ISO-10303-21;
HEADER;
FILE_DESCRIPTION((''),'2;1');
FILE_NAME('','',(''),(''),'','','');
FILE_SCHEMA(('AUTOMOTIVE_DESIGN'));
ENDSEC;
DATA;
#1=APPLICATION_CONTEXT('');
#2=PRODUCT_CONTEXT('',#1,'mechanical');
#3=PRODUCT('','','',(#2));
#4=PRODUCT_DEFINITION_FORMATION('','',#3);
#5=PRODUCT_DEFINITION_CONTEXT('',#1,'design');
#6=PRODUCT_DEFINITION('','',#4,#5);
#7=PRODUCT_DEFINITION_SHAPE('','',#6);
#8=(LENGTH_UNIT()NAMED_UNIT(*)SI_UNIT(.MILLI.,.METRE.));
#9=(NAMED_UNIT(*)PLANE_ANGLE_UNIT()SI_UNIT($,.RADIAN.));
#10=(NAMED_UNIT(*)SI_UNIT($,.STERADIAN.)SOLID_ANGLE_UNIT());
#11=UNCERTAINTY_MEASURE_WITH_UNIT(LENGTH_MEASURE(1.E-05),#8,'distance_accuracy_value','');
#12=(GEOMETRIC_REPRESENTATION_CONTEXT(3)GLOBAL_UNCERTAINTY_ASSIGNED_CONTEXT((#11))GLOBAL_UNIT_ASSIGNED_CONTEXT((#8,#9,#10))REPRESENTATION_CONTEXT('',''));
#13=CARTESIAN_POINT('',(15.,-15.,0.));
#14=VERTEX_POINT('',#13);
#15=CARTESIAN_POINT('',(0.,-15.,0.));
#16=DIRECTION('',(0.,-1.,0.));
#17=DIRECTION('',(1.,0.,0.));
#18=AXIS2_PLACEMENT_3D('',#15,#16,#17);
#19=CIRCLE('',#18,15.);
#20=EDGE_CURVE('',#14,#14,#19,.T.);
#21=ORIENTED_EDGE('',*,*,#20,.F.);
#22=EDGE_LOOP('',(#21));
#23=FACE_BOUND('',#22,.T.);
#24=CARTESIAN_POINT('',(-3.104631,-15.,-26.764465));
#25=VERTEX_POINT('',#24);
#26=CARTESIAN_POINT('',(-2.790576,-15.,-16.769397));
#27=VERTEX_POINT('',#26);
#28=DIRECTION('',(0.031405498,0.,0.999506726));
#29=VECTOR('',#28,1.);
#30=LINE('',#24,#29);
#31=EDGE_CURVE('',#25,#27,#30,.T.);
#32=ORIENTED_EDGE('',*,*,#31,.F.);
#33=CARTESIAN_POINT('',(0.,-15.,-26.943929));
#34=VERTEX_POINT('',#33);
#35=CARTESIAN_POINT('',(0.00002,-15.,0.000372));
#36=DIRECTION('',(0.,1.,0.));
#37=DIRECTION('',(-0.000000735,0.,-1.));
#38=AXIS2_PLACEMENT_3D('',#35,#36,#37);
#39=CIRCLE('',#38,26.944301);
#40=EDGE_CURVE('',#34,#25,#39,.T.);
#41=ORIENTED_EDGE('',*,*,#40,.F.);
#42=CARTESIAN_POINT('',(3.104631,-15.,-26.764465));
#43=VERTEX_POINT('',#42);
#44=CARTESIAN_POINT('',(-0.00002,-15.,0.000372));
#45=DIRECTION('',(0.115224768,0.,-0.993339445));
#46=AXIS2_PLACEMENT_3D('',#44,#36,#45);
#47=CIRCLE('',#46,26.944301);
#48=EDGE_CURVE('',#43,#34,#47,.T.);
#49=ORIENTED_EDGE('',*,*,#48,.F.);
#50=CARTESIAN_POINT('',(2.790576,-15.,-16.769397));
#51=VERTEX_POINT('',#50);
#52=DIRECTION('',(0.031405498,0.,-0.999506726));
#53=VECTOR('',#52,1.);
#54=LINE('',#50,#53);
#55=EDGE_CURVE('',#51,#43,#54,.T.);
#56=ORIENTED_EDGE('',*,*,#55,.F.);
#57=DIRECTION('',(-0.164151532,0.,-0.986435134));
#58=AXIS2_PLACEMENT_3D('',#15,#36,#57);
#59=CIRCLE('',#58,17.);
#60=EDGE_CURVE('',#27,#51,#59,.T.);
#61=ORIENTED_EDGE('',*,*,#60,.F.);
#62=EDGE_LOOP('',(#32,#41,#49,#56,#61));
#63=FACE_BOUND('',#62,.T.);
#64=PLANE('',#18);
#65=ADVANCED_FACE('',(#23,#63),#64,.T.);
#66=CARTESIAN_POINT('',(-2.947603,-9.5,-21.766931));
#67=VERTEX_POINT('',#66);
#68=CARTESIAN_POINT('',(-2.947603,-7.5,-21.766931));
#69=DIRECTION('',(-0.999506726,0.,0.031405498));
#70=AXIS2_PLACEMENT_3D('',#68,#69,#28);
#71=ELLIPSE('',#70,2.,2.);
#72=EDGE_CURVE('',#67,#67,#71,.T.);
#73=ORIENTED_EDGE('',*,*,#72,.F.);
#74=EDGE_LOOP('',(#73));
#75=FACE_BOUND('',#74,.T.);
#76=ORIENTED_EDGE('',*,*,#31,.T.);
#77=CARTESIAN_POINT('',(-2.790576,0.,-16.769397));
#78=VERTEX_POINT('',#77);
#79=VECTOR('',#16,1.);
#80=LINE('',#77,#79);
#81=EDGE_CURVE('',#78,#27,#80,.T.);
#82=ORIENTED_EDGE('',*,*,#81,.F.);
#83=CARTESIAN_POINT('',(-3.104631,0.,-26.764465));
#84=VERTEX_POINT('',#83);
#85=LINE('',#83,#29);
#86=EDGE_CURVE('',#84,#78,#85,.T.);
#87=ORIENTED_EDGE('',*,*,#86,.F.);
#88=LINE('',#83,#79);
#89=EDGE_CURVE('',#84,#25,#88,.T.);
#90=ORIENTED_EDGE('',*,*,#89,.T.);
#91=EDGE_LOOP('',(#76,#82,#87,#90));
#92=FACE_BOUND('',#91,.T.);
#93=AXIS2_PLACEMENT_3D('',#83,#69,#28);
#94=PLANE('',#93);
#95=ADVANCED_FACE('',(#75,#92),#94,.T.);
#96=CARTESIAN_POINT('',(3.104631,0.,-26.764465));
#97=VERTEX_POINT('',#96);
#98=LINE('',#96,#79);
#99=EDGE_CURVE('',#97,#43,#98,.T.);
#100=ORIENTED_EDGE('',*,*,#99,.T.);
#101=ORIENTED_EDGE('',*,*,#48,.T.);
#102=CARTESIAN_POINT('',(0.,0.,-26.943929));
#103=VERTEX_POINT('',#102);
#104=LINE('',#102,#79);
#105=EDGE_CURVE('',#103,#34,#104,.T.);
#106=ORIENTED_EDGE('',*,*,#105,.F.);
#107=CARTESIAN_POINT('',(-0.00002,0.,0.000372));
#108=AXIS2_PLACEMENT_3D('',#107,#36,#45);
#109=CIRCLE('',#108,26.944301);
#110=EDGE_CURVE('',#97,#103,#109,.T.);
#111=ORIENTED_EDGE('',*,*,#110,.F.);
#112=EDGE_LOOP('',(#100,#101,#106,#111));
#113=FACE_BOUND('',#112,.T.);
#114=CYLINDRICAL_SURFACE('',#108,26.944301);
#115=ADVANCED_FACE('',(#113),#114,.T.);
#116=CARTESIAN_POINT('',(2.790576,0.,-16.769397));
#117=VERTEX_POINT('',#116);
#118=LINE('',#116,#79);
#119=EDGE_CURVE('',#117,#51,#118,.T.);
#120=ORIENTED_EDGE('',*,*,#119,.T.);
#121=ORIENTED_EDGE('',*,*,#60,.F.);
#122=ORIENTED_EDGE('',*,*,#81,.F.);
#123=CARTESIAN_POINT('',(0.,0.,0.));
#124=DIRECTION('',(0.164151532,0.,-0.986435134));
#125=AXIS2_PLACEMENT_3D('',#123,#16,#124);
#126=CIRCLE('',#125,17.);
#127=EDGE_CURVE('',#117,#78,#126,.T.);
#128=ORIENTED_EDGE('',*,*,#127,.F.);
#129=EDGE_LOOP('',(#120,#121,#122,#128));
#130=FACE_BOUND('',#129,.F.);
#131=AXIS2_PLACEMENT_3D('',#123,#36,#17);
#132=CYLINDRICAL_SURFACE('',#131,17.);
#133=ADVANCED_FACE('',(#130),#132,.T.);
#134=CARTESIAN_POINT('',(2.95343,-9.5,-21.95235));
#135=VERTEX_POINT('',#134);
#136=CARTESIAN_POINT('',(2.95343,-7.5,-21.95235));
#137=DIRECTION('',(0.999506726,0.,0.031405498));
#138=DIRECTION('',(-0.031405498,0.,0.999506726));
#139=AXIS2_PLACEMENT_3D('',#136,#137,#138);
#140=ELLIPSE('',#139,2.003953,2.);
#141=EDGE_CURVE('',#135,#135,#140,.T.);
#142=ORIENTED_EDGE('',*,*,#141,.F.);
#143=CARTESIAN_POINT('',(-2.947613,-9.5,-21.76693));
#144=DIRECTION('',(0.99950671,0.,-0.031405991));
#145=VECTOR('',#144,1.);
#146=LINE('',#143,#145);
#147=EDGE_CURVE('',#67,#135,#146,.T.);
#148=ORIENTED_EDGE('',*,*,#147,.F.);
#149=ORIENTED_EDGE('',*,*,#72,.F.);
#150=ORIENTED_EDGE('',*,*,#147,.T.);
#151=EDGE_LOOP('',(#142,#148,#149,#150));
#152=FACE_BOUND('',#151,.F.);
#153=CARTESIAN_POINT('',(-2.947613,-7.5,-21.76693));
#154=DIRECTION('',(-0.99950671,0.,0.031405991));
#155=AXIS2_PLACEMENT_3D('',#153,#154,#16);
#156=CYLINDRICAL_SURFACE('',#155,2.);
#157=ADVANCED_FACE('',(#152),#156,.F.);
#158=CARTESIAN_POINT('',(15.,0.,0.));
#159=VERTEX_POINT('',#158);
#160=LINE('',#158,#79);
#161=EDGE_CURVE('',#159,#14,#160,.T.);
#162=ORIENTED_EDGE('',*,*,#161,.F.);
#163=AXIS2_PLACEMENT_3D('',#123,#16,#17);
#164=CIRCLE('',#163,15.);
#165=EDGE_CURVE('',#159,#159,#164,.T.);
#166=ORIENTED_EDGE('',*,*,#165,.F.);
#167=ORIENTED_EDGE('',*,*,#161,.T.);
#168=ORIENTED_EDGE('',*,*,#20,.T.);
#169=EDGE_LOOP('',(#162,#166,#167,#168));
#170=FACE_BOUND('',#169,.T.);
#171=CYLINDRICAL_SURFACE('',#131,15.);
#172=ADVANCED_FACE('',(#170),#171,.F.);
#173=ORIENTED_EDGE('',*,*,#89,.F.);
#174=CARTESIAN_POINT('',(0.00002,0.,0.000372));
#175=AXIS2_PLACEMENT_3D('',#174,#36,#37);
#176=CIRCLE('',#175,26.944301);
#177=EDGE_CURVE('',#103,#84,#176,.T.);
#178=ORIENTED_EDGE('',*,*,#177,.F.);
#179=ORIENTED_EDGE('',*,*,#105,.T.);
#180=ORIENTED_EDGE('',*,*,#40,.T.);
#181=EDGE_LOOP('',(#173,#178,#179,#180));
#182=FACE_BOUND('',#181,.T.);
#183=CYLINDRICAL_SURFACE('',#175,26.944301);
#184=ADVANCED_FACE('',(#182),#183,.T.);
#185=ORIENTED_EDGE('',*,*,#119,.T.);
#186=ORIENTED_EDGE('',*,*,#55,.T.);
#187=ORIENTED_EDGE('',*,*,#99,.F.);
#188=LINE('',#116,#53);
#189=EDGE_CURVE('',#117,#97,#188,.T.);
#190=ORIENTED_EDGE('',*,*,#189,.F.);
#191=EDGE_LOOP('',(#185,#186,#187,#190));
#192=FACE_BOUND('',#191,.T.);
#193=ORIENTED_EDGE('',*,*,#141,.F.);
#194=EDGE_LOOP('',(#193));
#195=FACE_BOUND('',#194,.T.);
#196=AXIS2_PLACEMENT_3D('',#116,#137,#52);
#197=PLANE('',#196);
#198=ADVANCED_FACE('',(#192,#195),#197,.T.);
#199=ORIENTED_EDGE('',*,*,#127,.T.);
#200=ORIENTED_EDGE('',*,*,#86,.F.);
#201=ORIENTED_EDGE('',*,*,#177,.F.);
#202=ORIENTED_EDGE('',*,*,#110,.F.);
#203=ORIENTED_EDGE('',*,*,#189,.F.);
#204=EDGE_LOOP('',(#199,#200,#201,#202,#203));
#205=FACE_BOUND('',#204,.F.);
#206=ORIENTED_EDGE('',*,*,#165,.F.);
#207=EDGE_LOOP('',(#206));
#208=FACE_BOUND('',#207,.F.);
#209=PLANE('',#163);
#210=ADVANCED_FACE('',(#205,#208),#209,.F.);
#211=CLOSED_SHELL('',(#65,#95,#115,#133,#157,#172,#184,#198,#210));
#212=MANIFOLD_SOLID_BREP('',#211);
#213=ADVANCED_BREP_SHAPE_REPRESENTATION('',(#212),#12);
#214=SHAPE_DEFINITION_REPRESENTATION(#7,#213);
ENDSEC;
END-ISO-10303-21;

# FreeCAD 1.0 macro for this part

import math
import FreeCAD as App
import Part
import Sketcher
Q = App.Units.Quantity

doc = App.newDocument("Part")
body = doc.addObject("PartDesign::Body", "Body")

# Sketch on XZ plane
sketch1 = body.newObject("Sketcher::SketchObject", "Sketch")
sketch1.AttachmentSupport = (doc.getObject("XZ_Plane"), [""])
sketch1.MapMode = "FlatFace"
sketch1.addGeometry([
    Part.Circle(App.Vector(0, 0, 0), App.Vector(0, 0, 1), 17),
    Part.Circle(App.Vector(0, 0, 0), App.Vector(0, 0, 1), 15),
], False)
sketch1.addConstraint([
    Sketcher.Constraint("Coincident", 0, 3, -1, 1),
    Sketcher.Constraint("Coincident", 1, 3, -1, 1),
    Sketcher.Constraint("Diameter", 0, Q("34 mm")),
    Sketcher.Constraint("Diameter", 1, Q("30 mm")),
])
pad1 = body.newObject("PartDesign::Pad", "Pad")
pad1.Profile = sketch1
pad1.Length = 15

# Sketch on XZ plane
sketch2 = body.newObject("Sketcher::SketchObject", "Sketch001")
sketch2.AttachmentSupport = (doc.getObject("XZ_Plane"), [""])
sketch2.MapMode = "FlatFace"
sketch2.addGeometry([
    Part.LineSegment(App.Vector(2.8, -16.8, 0), App.Vector(3.1, -26.8, 0)),  # 0
    Part.ArcOfCircle(Part.Circle(App.Vector(0, 0, 0), App.Vector(0, 0, 1), 26.9), math.radians(-90), math.radians(-83.38)),  # 1
    Part.ArcOfCircle(Part.Circle(App.Vector(0, 0, 0), App.Vector(0, 0, 1), 26.9), math.radians(-96.62), math.radians(-90)),  # 2
    Part.LineSegment(App.Vector(-3.1, -26.8, 0), App.Vector(-2.8, -16.8, 0)),  # 3
    Part.ArcOfCircle(Part.Circle(App.Vector(0, 0, 0), App.Vector(0, 0, 1), 17), math.radians(-99.45), math.radians(-90)),  # 4
    Part.ArcOfCircle(Part.Circle(App.Vector(0, 0, 0), App.Vector(0, 0, 1), 17), math.radians(-90), math.radians(-80.55)),  # 5
], False)
sketch2.addConstraint([
    Sketcher.Constraint("Coincident", 0, 2, 1, 2),
    Sketcher.Constraint("Tangent", 1, 1, 2, 2),
    Sketcher.Constraint("Coincident", 2, 1, 3, 1),
    Sketcher.Constraint("Coincident", 3, 2, 4, 1),
    Sketcher.Constraint("Tangent", 4, 2, 5, 1),
    Sketcher.Constraint("Coincident", 5, 2, 0, 1),
    Sketcher.Constraint("Equal", 1, 2),
    Sketcher.Constraint("Equal", 4, 5),
    Sketcher.Constraint("Symmetric", 0, 2, 2, 1, -2),
    Sketcher.Constraint("Symmetric", 3, 2, 5, 2, -2),
    Sketcher.Constraint("PointOnObject", 1, 1, -2),
    Sketcher.Constraint("PointOnObject", 4, 2, -2),
    Sketcher.Constraint("Distance", 0, Q("10.000001 mm")),
    Sketcher.Constraint("DistanceY", 4, 2, -1, 1, Q("17 mm")),
    Sketcher.Constraint("Radius", 1, Q("26.944301 mm")),
    Sketcher.Constraint("Radius", 4, Q("17.000025 mm")),
    Sketcher.Constraint("DistanceY", -1, 1, 1, 3, Q("0.000372 mm")),
    Sketcher.Constraint("DistanceX", -1, 1, 0, 2, Q("3.104631 mm")),
])
pad2 = body.newObject("PartDesign::Pad", "Pad001")
pad2.Profile = sketch2
pad2.Length = 15

# Sketch on an angled plane
sketch3 = body.newObject("Sketcher::SketchObject", "Sketch002")
sketch3.Placement = App.Placement(App.Vector(-2.261431, 0, 0.071057), App.Rotation(App.Vector(0, -1, 0), App.Vector(0.031405991, 0, 0.99950671), App.Vector(-0.99950671, 0, 0.031405991), "ZXY"))
sketch3.addGeometry(Part.Circle(App.Vector(7.5, -21.8, 0), App.Vector(0, 0, 1), 2), False)
sketch3.addConstraint([
    Sketcher.Constraint("Diameter", 0, Q("4 mm")),
    Sketcher.Constraint("DistanceX", -1, 1, 0, 3, Q("7.5 mm")),
    Sketcher.Constraint("DistanceY", 0, 3, -1, 1, Q("21.848765 mm")),
])
pocket1 = body.newObject("PartDesign::Pocket", "Pocket")
pocket1.Profile = sketch3
pocket1.Type = "ThroughAll"

doc.recompute()
